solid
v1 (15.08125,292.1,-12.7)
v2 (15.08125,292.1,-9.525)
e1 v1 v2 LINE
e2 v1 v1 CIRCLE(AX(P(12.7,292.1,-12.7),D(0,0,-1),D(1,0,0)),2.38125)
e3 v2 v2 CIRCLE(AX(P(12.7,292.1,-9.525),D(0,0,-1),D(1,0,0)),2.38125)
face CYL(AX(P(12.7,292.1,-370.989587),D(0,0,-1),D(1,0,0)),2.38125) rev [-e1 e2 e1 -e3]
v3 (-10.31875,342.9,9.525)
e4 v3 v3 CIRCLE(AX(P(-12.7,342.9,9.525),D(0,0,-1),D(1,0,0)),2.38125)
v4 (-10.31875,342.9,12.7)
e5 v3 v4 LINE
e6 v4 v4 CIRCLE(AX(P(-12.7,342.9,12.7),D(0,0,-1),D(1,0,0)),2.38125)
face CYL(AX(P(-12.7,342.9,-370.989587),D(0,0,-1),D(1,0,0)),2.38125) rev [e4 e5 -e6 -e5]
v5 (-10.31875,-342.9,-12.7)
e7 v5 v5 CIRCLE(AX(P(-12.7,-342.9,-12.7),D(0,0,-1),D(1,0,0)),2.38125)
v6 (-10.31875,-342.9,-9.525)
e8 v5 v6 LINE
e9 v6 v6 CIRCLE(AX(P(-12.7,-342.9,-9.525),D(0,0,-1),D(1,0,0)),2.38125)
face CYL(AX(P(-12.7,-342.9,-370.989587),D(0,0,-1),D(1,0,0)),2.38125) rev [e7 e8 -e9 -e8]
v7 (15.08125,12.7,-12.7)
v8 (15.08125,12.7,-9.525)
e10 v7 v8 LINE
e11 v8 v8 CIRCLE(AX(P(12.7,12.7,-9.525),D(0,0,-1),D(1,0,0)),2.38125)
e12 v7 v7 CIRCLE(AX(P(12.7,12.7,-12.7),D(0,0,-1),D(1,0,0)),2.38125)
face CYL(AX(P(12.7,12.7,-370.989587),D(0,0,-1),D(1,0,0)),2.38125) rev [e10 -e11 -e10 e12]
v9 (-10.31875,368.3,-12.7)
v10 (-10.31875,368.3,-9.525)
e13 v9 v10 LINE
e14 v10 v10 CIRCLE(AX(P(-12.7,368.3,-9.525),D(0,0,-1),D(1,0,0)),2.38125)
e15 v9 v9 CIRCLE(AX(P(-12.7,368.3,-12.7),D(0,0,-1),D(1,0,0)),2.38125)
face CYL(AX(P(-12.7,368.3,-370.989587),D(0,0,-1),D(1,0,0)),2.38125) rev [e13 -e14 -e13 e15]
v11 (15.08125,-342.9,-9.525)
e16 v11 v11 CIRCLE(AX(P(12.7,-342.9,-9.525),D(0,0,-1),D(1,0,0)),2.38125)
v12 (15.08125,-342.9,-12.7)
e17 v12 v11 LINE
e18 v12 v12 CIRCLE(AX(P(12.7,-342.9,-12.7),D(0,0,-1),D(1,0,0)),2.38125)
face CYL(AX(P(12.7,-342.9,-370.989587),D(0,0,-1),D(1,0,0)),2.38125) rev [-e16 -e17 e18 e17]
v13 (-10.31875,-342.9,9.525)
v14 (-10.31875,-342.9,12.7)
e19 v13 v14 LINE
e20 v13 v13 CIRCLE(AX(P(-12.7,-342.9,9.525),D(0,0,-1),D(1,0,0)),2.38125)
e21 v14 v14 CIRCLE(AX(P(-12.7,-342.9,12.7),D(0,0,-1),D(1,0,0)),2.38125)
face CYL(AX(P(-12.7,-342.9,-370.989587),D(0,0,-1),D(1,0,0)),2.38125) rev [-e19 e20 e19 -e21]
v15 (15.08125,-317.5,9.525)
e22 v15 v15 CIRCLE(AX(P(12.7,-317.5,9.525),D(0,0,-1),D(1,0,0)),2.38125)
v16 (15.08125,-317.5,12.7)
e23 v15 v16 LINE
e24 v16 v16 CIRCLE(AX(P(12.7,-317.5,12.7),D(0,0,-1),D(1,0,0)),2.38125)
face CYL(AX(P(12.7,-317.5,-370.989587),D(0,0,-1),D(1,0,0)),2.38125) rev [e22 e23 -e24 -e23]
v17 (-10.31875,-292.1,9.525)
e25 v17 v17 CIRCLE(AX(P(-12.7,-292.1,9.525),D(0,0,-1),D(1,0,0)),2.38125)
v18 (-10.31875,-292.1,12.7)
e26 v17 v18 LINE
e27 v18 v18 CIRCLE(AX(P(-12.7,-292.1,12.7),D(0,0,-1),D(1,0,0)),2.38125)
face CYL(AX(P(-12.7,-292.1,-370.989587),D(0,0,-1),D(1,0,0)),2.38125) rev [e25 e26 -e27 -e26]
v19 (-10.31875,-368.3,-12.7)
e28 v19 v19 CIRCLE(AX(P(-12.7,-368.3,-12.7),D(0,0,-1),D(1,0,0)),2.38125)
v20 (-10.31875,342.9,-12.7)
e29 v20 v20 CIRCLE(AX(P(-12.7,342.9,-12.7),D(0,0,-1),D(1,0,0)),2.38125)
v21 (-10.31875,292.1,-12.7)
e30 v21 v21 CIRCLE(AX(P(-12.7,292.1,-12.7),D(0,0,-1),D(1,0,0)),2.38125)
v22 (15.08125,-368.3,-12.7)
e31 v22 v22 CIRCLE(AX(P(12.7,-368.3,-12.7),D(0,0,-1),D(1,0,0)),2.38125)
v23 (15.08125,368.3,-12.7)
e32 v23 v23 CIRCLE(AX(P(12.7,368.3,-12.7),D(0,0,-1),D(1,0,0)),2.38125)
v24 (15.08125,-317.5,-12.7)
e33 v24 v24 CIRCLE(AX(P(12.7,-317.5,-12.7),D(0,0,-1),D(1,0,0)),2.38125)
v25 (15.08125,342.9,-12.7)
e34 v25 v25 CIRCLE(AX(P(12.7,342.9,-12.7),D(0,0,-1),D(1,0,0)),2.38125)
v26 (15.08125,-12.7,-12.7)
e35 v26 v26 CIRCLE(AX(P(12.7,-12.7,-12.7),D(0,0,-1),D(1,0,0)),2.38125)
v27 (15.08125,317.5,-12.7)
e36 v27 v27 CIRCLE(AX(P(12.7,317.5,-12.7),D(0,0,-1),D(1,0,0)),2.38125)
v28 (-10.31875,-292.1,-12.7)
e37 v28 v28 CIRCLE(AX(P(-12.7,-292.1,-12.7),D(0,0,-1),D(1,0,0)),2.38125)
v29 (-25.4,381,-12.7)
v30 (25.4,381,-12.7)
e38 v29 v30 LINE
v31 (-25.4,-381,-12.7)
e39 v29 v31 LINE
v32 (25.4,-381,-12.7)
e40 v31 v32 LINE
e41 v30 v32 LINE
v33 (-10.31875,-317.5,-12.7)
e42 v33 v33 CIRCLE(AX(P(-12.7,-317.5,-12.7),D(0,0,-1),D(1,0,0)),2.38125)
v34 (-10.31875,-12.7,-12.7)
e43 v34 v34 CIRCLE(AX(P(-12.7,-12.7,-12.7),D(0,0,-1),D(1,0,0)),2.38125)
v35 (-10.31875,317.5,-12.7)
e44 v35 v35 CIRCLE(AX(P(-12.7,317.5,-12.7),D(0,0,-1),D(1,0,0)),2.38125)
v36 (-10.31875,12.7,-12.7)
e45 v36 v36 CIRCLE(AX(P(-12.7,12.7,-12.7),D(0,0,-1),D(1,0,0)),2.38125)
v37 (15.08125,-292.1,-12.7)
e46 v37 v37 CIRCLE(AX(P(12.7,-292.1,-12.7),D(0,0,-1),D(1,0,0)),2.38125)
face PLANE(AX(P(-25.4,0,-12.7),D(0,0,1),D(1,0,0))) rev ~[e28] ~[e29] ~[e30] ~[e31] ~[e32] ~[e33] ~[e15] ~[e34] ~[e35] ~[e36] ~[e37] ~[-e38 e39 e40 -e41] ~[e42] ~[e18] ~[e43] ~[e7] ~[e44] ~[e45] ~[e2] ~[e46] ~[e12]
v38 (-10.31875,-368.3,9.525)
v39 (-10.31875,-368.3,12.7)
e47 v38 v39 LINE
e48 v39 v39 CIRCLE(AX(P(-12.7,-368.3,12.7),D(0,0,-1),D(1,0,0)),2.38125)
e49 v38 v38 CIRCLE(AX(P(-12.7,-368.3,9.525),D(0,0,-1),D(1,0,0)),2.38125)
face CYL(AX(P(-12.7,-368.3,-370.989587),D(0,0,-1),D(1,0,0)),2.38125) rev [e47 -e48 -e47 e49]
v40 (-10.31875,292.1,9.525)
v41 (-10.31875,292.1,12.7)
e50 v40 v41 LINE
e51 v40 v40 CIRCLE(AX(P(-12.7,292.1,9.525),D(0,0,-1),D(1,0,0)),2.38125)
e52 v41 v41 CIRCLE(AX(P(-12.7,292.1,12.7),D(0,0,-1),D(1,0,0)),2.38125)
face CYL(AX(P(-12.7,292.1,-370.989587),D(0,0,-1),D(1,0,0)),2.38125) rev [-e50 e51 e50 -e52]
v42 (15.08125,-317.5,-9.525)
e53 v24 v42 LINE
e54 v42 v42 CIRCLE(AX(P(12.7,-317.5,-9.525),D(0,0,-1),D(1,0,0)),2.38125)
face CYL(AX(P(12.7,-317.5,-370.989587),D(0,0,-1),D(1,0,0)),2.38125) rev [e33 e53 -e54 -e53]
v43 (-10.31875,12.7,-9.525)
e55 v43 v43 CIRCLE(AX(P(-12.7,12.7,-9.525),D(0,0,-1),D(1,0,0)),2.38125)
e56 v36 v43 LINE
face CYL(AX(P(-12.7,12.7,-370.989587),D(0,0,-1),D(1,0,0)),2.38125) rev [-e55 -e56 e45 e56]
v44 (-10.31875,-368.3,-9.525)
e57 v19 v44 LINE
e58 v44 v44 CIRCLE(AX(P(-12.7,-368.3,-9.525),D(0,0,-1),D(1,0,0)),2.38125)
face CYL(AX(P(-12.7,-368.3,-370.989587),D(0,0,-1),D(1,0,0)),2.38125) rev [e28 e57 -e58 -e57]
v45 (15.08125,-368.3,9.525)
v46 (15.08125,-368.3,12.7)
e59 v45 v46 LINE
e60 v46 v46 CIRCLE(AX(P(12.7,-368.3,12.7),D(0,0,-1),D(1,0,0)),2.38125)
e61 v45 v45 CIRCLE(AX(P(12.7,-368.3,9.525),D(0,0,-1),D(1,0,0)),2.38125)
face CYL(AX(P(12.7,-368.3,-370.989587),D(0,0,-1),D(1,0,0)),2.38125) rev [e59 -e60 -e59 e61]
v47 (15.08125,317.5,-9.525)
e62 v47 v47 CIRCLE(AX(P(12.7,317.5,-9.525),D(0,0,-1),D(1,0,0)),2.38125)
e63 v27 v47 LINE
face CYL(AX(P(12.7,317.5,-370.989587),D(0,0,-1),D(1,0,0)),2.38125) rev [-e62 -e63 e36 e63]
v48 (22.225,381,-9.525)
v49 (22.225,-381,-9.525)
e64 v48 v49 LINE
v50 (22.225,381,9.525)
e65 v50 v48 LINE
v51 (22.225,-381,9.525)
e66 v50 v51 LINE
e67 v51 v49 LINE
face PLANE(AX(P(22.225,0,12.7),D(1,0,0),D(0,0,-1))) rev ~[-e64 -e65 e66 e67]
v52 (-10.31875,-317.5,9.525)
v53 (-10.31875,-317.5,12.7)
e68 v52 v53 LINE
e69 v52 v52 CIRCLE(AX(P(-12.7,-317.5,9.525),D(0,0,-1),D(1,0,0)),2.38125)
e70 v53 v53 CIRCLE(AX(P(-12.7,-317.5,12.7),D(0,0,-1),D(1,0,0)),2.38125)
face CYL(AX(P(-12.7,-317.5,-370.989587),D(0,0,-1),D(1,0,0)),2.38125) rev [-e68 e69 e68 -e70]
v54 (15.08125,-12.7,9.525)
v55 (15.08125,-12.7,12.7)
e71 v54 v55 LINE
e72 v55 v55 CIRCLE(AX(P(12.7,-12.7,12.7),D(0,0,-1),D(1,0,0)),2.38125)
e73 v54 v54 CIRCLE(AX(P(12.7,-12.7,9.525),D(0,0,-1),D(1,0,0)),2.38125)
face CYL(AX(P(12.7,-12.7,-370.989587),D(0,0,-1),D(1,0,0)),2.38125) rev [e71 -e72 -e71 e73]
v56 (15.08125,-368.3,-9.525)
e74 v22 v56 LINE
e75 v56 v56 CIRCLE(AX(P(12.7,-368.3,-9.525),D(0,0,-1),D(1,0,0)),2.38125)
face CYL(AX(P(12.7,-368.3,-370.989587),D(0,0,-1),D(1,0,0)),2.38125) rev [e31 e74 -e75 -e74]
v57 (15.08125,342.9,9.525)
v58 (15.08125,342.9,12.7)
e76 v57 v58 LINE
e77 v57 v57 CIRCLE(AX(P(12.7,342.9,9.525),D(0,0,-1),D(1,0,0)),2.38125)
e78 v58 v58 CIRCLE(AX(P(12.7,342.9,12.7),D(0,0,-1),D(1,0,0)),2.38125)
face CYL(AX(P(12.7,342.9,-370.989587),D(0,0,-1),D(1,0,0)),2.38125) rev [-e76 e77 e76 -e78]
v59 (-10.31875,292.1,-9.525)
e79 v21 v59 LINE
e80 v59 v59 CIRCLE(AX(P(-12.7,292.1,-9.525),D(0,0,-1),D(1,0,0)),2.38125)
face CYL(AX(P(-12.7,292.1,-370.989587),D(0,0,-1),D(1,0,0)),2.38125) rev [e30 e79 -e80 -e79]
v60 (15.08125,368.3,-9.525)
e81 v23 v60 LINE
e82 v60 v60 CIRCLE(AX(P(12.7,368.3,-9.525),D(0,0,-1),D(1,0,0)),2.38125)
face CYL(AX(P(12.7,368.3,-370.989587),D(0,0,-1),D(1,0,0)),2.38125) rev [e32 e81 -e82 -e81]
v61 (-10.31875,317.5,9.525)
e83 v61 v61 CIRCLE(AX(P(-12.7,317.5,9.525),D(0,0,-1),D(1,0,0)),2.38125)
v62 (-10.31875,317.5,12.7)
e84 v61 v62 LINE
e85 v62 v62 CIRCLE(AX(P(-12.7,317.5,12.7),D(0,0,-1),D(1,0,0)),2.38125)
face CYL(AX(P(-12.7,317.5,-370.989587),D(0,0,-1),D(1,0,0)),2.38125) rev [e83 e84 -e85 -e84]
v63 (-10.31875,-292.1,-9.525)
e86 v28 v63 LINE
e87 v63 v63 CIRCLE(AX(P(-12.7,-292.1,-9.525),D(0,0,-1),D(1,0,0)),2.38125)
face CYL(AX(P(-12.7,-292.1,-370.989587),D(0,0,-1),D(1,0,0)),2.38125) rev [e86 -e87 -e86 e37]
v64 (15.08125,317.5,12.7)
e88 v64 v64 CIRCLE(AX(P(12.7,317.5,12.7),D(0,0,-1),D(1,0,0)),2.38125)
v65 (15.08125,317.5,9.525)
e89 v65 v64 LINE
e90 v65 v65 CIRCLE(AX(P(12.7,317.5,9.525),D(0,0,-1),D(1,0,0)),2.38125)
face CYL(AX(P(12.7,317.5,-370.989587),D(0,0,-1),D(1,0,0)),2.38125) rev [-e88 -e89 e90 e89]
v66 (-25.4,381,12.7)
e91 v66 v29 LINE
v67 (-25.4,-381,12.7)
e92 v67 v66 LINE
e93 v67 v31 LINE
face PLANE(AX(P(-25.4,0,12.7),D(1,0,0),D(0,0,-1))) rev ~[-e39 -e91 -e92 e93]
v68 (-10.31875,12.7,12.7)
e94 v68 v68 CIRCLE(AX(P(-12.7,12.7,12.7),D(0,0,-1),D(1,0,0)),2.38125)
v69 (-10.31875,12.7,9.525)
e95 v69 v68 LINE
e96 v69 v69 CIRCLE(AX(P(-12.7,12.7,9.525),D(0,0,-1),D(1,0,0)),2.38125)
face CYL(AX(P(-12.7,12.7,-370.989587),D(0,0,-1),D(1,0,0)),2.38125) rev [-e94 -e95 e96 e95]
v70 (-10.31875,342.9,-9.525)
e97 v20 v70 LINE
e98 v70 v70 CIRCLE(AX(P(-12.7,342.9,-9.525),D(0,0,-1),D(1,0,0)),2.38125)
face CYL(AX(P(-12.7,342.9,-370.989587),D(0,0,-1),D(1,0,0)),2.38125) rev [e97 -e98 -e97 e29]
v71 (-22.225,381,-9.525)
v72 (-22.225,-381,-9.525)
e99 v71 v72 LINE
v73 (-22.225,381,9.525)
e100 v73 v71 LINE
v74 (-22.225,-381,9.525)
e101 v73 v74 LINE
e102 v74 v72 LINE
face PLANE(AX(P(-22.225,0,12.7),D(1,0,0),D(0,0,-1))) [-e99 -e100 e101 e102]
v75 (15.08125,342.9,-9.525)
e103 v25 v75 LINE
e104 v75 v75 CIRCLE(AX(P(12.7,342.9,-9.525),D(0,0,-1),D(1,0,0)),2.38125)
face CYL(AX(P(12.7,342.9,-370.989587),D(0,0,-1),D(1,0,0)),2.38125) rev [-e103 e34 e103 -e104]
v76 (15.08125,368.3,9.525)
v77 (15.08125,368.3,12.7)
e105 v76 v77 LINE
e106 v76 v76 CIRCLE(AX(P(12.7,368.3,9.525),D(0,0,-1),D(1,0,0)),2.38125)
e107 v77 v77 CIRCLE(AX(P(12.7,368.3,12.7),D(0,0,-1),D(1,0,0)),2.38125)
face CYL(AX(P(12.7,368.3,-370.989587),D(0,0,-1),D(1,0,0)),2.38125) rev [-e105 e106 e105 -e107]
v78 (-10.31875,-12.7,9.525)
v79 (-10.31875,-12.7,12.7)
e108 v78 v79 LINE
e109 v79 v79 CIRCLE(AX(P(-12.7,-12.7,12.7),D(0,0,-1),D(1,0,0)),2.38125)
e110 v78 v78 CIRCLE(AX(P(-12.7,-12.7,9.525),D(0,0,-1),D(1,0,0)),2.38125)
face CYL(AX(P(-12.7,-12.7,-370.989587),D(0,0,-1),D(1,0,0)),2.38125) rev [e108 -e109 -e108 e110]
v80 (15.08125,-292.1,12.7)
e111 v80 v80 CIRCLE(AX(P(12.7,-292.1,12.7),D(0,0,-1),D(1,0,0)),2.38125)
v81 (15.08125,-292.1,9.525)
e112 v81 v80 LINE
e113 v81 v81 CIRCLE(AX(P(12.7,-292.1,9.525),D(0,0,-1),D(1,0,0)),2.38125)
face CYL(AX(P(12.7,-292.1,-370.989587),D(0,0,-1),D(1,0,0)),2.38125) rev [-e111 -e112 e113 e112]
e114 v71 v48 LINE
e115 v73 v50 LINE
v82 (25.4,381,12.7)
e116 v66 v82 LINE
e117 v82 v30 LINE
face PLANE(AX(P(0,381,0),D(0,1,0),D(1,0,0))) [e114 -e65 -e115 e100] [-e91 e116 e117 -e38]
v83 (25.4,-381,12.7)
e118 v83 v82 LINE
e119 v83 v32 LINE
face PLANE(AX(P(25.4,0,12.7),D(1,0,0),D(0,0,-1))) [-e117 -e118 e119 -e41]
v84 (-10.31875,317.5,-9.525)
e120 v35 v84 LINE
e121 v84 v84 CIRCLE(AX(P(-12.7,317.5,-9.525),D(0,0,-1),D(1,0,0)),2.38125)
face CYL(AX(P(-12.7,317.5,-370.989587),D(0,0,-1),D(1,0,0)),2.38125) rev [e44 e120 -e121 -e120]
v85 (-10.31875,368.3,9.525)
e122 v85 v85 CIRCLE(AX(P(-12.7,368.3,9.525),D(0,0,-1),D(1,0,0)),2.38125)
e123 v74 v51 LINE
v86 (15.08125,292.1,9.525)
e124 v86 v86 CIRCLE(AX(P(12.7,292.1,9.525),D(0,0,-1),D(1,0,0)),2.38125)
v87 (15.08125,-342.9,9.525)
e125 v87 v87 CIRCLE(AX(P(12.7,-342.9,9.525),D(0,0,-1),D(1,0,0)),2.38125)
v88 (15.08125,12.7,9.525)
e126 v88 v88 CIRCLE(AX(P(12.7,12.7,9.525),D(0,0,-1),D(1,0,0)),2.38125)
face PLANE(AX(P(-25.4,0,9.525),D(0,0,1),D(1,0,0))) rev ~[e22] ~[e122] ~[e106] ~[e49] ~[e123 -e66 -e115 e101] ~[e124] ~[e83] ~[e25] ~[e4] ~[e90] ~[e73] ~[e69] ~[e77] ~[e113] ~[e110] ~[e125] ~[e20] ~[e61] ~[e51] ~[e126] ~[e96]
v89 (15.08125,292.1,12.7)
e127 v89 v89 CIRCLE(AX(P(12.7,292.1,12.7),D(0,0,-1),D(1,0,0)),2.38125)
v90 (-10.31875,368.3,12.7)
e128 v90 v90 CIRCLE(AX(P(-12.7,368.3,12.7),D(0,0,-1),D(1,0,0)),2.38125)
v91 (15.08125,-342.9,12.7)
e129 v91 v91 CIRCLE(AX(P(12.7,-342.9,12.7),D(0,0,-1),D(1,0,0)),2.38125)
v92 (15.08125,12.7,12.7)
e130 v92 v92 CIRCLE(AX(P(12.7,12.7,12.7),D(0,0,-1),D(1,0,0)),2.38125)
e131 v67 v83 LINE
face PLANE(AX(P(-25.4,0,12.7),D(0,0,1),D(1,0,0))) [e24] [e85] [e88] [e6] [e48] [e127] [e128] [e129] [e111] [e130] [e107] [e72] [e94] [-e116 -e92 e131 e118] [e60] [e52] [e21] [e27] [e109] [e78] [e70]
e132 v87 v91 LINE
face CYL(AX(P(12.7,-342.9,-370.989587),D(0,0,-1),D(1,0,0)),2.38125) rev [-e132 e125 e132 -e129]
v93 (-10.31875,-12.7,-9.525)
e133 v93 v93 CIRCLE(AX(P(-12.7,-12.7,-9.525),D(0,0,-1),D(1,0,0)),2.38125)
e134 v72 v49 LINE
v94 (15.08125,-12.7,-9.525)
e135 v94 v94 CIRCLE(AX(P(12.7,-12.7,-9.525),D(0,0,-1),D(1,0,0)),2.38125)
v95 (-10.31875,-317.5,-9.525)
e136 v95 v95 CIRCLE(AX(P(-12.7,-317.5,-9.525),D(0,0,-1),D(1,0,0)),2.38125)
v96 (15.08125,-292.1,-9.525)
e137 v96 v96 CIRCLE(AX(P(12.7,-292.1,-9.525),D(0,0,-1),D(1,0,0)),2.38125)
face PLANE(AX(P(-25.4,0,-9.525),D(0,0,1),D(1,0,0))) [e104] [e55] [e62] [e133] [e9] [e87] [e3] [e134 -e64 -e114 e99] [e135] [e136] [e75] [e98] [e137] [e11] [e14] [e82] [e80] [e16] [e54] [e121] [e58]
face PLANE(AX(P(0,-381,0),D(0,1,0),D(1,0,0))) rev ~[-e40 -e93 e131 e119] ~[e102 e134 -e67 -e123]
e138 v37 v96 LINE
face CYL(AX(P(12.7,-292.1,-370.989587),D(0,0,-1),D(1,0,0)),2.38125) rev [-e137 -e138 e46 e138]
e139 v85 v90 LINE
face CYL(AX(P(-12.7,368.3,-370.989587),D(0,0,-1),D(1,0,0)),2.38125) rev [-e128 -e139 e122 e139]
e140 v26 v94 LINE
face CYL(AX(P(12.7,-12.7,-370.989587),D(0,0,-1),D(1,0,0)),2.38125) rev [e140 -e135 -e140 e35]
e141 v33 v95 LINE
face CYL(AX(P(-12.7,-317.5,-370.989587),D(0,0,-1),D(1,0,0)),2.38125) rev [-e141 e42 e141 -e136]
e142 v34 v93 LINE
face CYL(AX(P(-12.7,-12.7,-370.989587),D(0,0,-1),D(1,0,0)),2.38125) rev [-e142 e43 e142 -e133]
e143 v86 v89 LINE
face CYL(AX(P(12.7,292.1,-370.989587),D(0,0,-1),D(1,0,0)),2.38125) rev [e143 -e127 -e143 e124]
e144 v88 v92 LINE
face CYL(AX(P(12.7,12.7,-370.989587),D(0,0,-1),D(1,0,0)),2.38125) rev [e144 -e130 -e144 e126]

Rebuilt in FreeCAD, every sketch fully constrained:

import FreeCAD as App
import Part
import Sketcher
Q = App.Units.Quantity


def faces_at(feature, points):
    """Names of the faces that lie closest to the given points."""
    faces = feature.Shape.Faces
    near = lambda p: min(range(len(faces)), key=lambda i: faces[i].distToShape(Part.Vertex(*p))[0])
    return sorted({f"Face{near(p) + 1}" for p in points})


def add_polygon(sketch, points):
    """Adds a closed chain of lines whose ends are joined by coincident constraints."""
    first, n = sketch.GeometryCount, len(points)
    for a, b in zip(points, points[1:] + points[:1]):
        sketch.addGeometry(Part.LineSegment(App.Vector(*a, 0), App.Vector(*b, 0)), False)
    for i in range(n):
        sketch.addConstraint(Sketcher.Constraint("Coincident", first + i, 2, first + (i + 1) % n, 1))

doc = App.newDocument("Part")
body = doc.addObject("PartDesign::Body", "Body")

sketch1 = doc.addObject("Sketcher::SketchObject", "Sketch")
body.addObject(sketch1)
sketch1.AttachmentSupport = (doc.XZ_Plane, [""])
sketch1.MapMode = "FlatFace"
add_polygon(sketch1, [(-25, -13), (-25, 13), (25, 13), (25, -13)])
sketch1.addConstraint([
    Sketcher.Constraint("Vertical", 0),
    Sketcher.Constraint("Horizontal", 1),
    Sketcher.Constraint("Vertical", 2),
    Sketcher.Constraint("Horizontal", 3),
    Sketcher.Constraint("Symmetric", 0, 2, 2, 2, -1, 1),
    Sketcher.Constraint("DistanceX", 1, 1, 1, 2, Q("2 in")),
    Sketcher.Constraint("DistanceY", 0, 1, 0, 2, Q("1 in")),
])
pad1 = doc.addObject("PartDesign::Pad", "Pad")
body.addObject(pad1)
pad1.Profile = sketch1
pad1.Length = Q("30 in")
pad1.Midplane = True
doc.recompute()

thickness = doc.addObject("PartDesign::Thickness", "Thickness")
body.addObject(thickness)
thickness.Base = (pad1, faces_at(pad1, [(0, 381, 0), (0, -381, 0)]))
thickness.Value = Q("0.125 in")
thickness.Reversed = True
thickness.Join = "Intersection"

sketch2 = doc.addObject("Sketcher::SketchObject", "Sketch001")
body.addObject(sketch2)
sketch2.AttachmentSupport = (doc.XY_Plane, [""])
sketch2.MapMode = "FlatFace"
sketch2.AttachmentOffset = App.Placement(App.Vector(0, 0, 0.5 * 25.4), App.Rotation())
sketch2.addGeometry([
    Part.Circle(App.Vector(-12.7, 368.3, 0), App.Vector(0, 0, 1), 2.4),
    Part.Circle(App.Vector(12.7, 368.3, 0), App.Vector(0, 0, 1), 2.4),
    Part.Circle(App.Vector(12.7, 342.9, 0), App.Vector(0, 0, 1), 2.4),
    Part.Circle(App.Vector(-12.7, 342.9, 0), App.Vector(0, 0, 1), 2.4),
    Part.Circle(App.Vector(-12.7, -342.9, 0), App.Vector(0, 0, 1), 2.4),
    Part.Circle(App.Vector(12.7, -342.9, 0), App.Vector(0, 0, 1), 2.4),
    Part.Circle(App.Vector(12.7, -368.3, 0), App.Vector(0, 0, 1), 2.4),
    Part.Circle(App.Vector(-12.7, -368.3, 0), App.Vector(0, 0, 1), 2.4),
    Part.Circle(App.Vector(-12.7, 12.7, 0), App.Vector(0, 0, 1), 2.4),
    Part.Circle(App.Vector(12.7, 12.7, 0), App.Vector(0, 0, 1), 2.4),
    Part.Circle(App.Vector(12.7, -12.7, 0), App.Vector(0, 0, 1), 2.4),
    Part.Circle(App.Vector(-12.7, -12.7, 0), App.Vector(0, 0, 1), 2.4),
    Part.Circle(App.Vector(-12.7, 317.5, 0), App.Vector(0, 0, 1), 2.4),
    Part.Circle(App.Vector(12.7, 317.5, 0), App.Vector(0, 0, 1), 2.4),
    Part.Circle(App.Vector(12.7, 292.1, 0), App.Vector(0, 0, 1), 2.4),
    Part.Circle(App.Vector(-12.7, 292.1, 0), App.Vector(0, 0, 1), 2.4),
    Part.Circle(App.Vector(-12.7, -292.1, 0), App.Vector(0, 0, 1), 2.4),
    Part.Circle(App.Vector(12.7, -292.1, 0), App.Vector(0, 0, 1), 2.4),
    Part.Circle(App.Vector(12.7, -317.5, 0), App.Vector(0, 0, 1), 2.4),
    Part.Circle(App.Vector(-12.7, -317.5, 0), App.Vector(0, 0, 1), 2.4),
], False)
sketch2.addConstraint([
    Sketcher.Constraint("Equal", 0, 1),
    Sketcher.Constraint("Equal", 1, 2),
    Sketcher.Constraint("Equal", 2, 3),
    Sketcher.Constraint("Equal", 3, 4),
    Sketcher.Constraint("Equal", 4, 5),
    Sketcher.Constraint("Equal", 5, 6),
    Sketcher.Constraint("Equal", 6, 7),
    Sketcher.Constraint("Equal", 7, 8),
    Sketcher.Constraint("Equal", 8, 9),
    Sketcher.Constraint("Equal", 9, 10),
    Sketcher.Constraint("Equal", 10, 11),
    Sketcher.Constraint("Equal", 11, 12),
    Sketcher.Constraint("Equal", 12, 13),
    Sketcher.Constraint("Equal", 13, 14),
    Sketcher.Constraint("Equal", 14, 15),
    Sketcher.Constraint("Equal", 15, 16),
    Sketcher.Constraint("Equal", 16, 17),
    Sketcher.Constraint("Equal", 17, 18),
    Sketcher.Constraint("Equal", 18, 19),
    Sketcher.Constraint("Symmetric", 2, 3, 4, 3, -1, 1),
    Sketcher.Constraint("Symmetric", 3, 3, 5, 3, -1, 1),
    Sketcher.Constraint("Symmetric", 0, 3, 6, 3, -1, 1),
    Sketcher.Constraint("Symmetric", 1, 3, 7, 3, -1, 1),
    Sketcher.Constraint("Symmetric", 8, 3, 10, 3, -1, 1),
    Sketcher.Constraint("Symmetric", 9, 3, 11, 3, -1, 1),
    Sketcher.Constraint("Symmetric", 14, 3, 16, 3, -1, 1),
    Sketcher.Constraint("Symmetric", 15, 3, 17, 3, -1, 1),
    Sketcher.Constraint("Symmetric", 12, 3, 18, 3, -1, 1),
    Sketcher.Constraint("Symmetric", 13, 3, 19, 3, -1, 1),
    Sketcher.Constraint("Symmetric", 0, 3, 1, 3, -2),
    Sketcher.Constraint("Symmetric", 2, 3, 3, 3, -2),
    Sketcher.Constraint("Symmetric", 8, 3, 9, 3, -2),
    Sketcher.Constraint("Symmetric", 12, 3, 13, 3, -2),
    Sketcher.Constraint("Symmetric", 14, 3, 15, 3, -2),
    Sketcher.Constraint("Vertical", 1, 3, 2, 3),
    Sketcher.Constraint("Vertical", 7, 3, 8, 3),
    Sketcher.Constraint("Vertical", 11, 3, 12, 3),
    Sketcher.Constraint("Vertical", 13, 3, 14, 3),
    Sketcher.Constraint("Diameter", 0, Q("0.1875 in")),
    Sketcher.Constraint("DistanceX", 0, 3, 1, 3, Q("1 in")),
    Sketcher.Constraint("DistanceY", 2, 3, 1, 3, Q("1 in")),
    Sketcher.Constraint("DistanceY", 4, 3, 3, 3, Q("27 in")),
    Sketcher.Constraint("DistanceY", 8, 3, 3, 3, Q("13 in")),
    Sketcher.Constraint("DistanceY", 12, 3, 3, 3, Q("1 in")),
    Sketcher.Constraint("DistanceY", 14, 3, 13, 3, Q("1 in")),
])
pocket1 = doc.addObject("PartDesign::Pocket", "Pocket")
body.addObject(pocket1)
pocket1.Profile = sketch2
pocket1.Type = "ThroughAll"
pocket1.Midplane = True

doc.recompute()
